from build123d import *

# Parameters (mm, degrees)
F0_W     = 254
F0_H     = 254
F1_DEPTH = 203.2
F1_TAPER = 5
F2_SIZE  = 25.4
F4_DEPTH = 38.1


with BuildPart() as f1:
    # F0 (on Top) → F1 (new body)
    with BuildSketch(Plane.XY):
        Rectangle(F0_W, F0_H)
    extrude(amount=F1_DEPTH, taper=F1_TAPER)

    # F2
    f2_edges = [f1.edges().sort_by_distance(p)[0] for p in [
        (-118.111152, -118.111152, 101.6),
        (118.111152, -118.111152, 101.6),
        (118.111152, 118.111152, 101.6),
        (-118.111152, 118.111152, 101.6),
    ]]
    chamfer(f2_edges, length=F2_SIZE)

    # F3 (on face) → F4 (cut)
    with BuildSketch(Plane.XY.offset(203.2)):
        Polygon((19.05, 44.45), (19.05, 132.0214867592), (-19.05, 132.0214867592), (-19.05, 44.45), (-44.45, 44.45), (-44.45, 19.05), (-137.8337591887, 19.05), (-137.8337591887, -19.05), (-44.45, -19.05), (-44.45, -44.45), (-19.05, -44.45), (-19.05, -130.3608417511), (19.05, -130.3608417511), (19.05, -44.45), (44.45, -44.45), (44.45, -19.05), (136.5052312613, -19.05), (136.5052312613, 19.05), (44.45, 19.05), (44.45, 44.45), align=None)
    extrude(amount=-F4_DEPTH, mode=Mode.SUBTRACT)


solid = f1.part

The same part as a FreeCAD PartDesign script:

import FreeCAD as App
import Part
import Sketcher
Q = App.Units.Quantity


def edges_at(feature, points):
    """Names of the edges that pass closest to the given points."""
    edges = feature.Shape.Edges
    near = lambda p: min(range(len(edges)), key=lambda i: edges[i].distToShape(Part.Vertex(*p))[0])
    return sorted({f"Edge{near(p) + 1}" for p in points})

doc = App.newDocument("Part")
body = doc.addObject("PartDesign::Body", "Body")

# Sketch on XY plane
sketch1 = body.newObject("Sketcher::SketchObject", "Sketch")
sketch1.AttachmentSupport = (doc.getObject("XY_Plane"), [""])
sketch1.MapMode = "FlatFace"
sketch1.addGeometry(Part.LineSegment(App.Vector(-127, 127, 0), App.Vector(-127, -127, 0)), False)
sketch1.addGeometry(Part.LineSegment(App.Vector(-127, -127, 0), App.Vector(127, -127, 0)), False)
sketch1.addGeometry(Part.LineSegment(App.Vector(127, -127, 0), App.Vector(127, 127, 0)), False)
sketch1.addGeometry(Part.LineSegment(App.Vector(127, 127, 0), App.Vector(-127, 127, 0)), False)
sketch1.addConstraint(Sketcher.Constraint("Coincident", 0, 2, 1, 1))
sketch1.addConstraint(Sketcher.Constraint("Coincident", 1, 2, 2, 1))
sketch1.addConstraint(Sketcher.Constraint("Coincident", 2, 2, 3, 1))
sketch1.addConstraint(Sketcher.Constraint("Coincident", 3, 2, 0, 1))
sketch1.addConstraint(Sketcher.Constraint("Vertical", 0))
sketch1.addConstraint(Sketcher.Constraint("Horizontal", 1))
sketch1.addConstraint(Sketcher.Constraint("Vertical", 2))
sketch1.addConstraint(Sketcher.Constraint("Horizontal", 3))
sketch1.addConstraint(Sketcher.Constraint("Symmetric", 0, 2, 2, 2, -1, 1))
sketch1.addConstraint(Sketcher.Constraint("Equal", 3, 0))
sketch1.addConstraint(Sketcher.Constraint("DistanceX", 1, 1, 1, 2, Q("10 in")))
pad1 = body.newObject("PartDesign::Pad", "Pad")
pad1.Profile = sketch1
pad1.Length = Q("8 in")
pad1.TaperAngle = -5
doc.recompute()

chamfer = body.newObject("PartDesign::Chamfer", "Chamfer")
chamfer.Base = (pad1, edges_at(pad1, [
    (-118.111, -118.111, 101.6),
    (118.111, -118.111, 101.6),
    (118.111, 118.111, 101.6),
    (-118.111, 118.111, 101.6),
]))
chamfer.Size = Q("1 in")

# Sketch on XY plane
sketch2 = body.newObject("Sketcher::SketchObject", "Sketch001")
sketch2.AttachmentSupport = (doc.getObject("XY_Plane"), [""])
sketch2.MapMode = "FlatFace"
sketch2.AttachmentOffset = App.Placement(App.Vector(0, 0, 8 * 25.4), App.Rotation())
sketch2.addGeometry(Part.LineSegment(App.Vector(19.05, 44.45, 0), App.Vector(19.05, 132.021487, 0)), False)
sketch2.addGeometry(Part.LineSegment(App.Vector(19.05, 132.021487, 0), App.Vector(-19.05, 132.021487, 0)), False)
sketch2.addGeometry(Part.LineSegment(App.Vector(-19.05, 132.021487, 0), App.Vector(-19.05, 44.45, 0)), False)
sketch2.addGeometry(Part.LineSegment(App.Vector(-19.05, 44.45, 0), App.Vector(-44.45, 44.45, 0)), False)
sketch2.addGeometry(Part.LineSegment(App.Vector(-44.45, 44.45, 0), App.Vector(-44.45, 19.05, 0)), False)
sketch2.addGeometry(Part.LineSegment(App.Vector(-44.45, 19.05, 0), App.Vector(-137.833759, 19.05, 0)), False)
sketch2.addGeometry(Part.LineSegment(App.Vector(-137.833759, 19.05, 0), App.Vector(-137.833759, -19.05, 0)), False)
sketch2.addGeometry(Part.LineSegment(App.Vector(-137.833759, -19.05, 0), App.Vector(-44.45, -19.05, 0)), False)
sketch2.addGeometry(Part.LineSegment(App.Vector(-44.45, -19.05, 0), App.Vector(-44.45, -44.45, 0)), False)
sketch2.addGeometry(Part.LineSegment(App.Vector(-44.45, -44.45, 0), App.Vector(-19.05, -44.45, 0)), False)
sketch2.addGeometry(Part.LineSegment(App.Vector(-19.05, -44.45, 0), App.Vector(-19.05, -130.360842, 0)), False)
sketch2.addGeometry(Part.LineSegment(App.Vector(-19.05, -130.360842, 0), App.Vector(19.05, -130.360842, 0)), False)
sketch2.addGeometry(Part.LineSegment(App.Vector(19.05, -130.360842, 0), App.Vector(19.05, -44.45, 0)), False)
sketch2.addGeometry(Part.LineSegment(App.Vector(19.05, -44.45, 0), App.Vector(44.45, -44.45, 0)), False)
sketch2.addGeometry(Part.LineSegment(App.Vector(44.45, -44.45, 0), App.Vector(44.45, -19.05, 0)), False)
sketch2.addGeometry(Part.LineSegment(App.Vector(44.45, -19.05, 0), App.Vector(136.505231, -19.05, 0)), False)
sketch2.addGeometry(Part.LineSegment(App.Vector(136.505231, -19.05, 0), App.Vector(136.505231, 19.05, 0)), False)
sketch2.addGeometry(Part.LineSegment(App.Vector(136.505231, 19.05, 0), App.Vector(44.45, 19.05, 0)), False)
sketch2.addGeometry(Part.LineSegment(App.Vector(44.45, 19.05, 0), App.Vector(44.45, 44.45, 0)), False)
sketch2.addGeometry(Part.LineSegment(App.Vector(44.45, 44.45, 0), App.Vector(19.05, 44.45, 0)), False)
sketch2.addConstraint(Sketcher.Constraint("Coincident", 0, 2, 1, 1))
sketch2.addConstraint(Sketcher.Constraint("Coincident", 1, 2, 2, 1))
sketch2.addConstraint(Sketcher.Constraint("Coincident", 2, 2, 3, 1))
sketch2.addConstraint(Sketcher.Constraint("Coincident", 3, 2, 4, 1))
sketch2.addConstraint(Sketcher.Constraint("Coincident", 4, 2, 5, 1))
sketch2.addConstraint(Sketcher.Constraint("Coincident", 5, 2, 6, 1))
sketch2.addConstraint(Sketcher.Constraint("Coincident", 6, 2, 7, 1))
sketch2.addConstraint(Sketcher.Constraint("Coincident", 7, 2, 8, 1))
sketch2.addConstraint(Sketcher.Constraint("Coincident", 8, 2, 9, 1))
sketch2.addConstraint(Sketcher.Constraint("Coincident", 9, 2, 10, 1))
sketch2.addConstraint(Sketcher.Constraint("Coincident", 10, 2, 11, 1))
sketch2.addConstraint(Sketcher.Constraint("Coincident", 11, 2, 12, 1))
sketch2.addConstraint(Sketcher.Constraint("Coincident", 12, 2, 13, 1))
sketch2.addConstraint(Sketcher.Constraint("Coincident", 13, 2, 14, 1))
sketch2.addConstraint(Sketcher.Constraint("Coincident", 14, 2, 15, 1))
sketch2.addConstraint(Sketcher.Constraint("Coincident", 15, 2, 16, 1))
sketch2.addConstraint(Sketcher.Constraint("Coincident", 16, 2, 17, 1))
sketch2.addConstraint(Sketcher.Constraint("Coincident", 17, 2, 18, 1))
sketch2.addConstraint(Sketcher.Constraint("Coincident", 18, 2, 19, 1))
sketch2.addConstraint(Sketcher.Constraint("Coincident", 19, 2, 0, 1))
sketch2.addConstraint(Sketcher.Constraint("Vertical", 0))
sketch2.addConstraint(Sketcher.Constraint("Horizontal", 1))
sketch2.addConstraint(Sketcher.Constraint("Vertical", 2))
sketch2.addConstraint(Sketcher.Constraint("Horizontal", 3))
sketch2.addConstraint(Sketcher.Constraint("Vertical", 4))
sketch2.addConstraint(Sketcher.Constraint("Horizontal", 5))
sketch2.addConstraint(Sketcher.Constraint("Vertical", 6))
sketch2.addConstraint(Sketcher.Constraint("Horizontal", 7))
sketch2.addConstraint(Sketcher.Constraint("Vertical", 8))
sketch2.addConstraint(Sketcher.Constraint("Horizontal", 9))
sketch2.addConstraint(Sketcher.Constraint("Vertical", 10))
sketch2.addConstraint(Sketcher.Constraint("Horizontal", 11))
sketch2.addConstraint(Sketcher.Constraint("Vertical", 12))
sketch2.addConstraint(Sketcher.Constraint("Horizontal", 13))
sketch2.addConstraint(Sketcher.Constraint("Vertical", 14))
sketch2.addConstraint(Sketcher.Constraint("Horizontal", 15))
sketch2.addConstraint(Sketcher.Constraint("Vertical", 16))
sketch2.addConstraint(Sketcher.Constraint("Horizontal", 17))
sketch2.addConstraint(Sketcher.Constraint("Vertical", 18))
sketch2.addConstraint(Sketcher.Constraint("Horizontal", 19))
sketch2.addConstraint(Sketcher.Constraint("Symmetric", 2, 2, 12, 2, -1, 1))
sketch2.addConstraint(Sketcher.Constraint("Symmetric", 4, 2, 14, 2, -1, 1))
sketch2.addConstraint(Sketcher.Constraint("Symmetric", 7, 2, 17, 2, -1, 1))
sketch2.addConstraint(Sketcher.Constraint("Symmetric", 9, 2, 19, 2, -1, 1))
sketch2.addConstraint(Sketcher.Constraint("Symmetric", 9, 2, 12, 2, -2))
sketch2.addConstraint(Sketcher.Constraint("Symmetric", 7, 2, 14, 2, -2))
sketch2.addConstraint(Sketcher.Constraint("Equal", 19, 4))
sketch2.addConstraint(Sketcher.Constraint("Equal", 11, 6))
sketch2.addConstraint(Sketcher.Constraint("DistanceX", 3, 2, 3, 1, Q("1 in")))
sketch2.addConstraint(Sketcher.Constraint("DistanceX", 1, 2, 1, 1, Q("1.5 in")))
sketch2.addConstraint(Sketcher.Constraint("DistanceX", 5, 2, 5, 1, 93.383759))
sketch2.addConstraint(Sketcher.Constraint("DistanceX", 15, 1, 15, 2, 92.055231))
sketch2.addConstraint(Sketcher.Constraint("DistanceY", 10, 2, 10, 1, 85.910842))
sketch2.addConstraint(Sketcher.Constraint("DistanceY", 0, 1, 0, 2, 87.571487))
pocket1 = body.newObject("PartDesign::Pocket", "Pocket")
pocket1.Profile = sketch2
pocket1.Length = Q("1.5 in")

doc.recompute()
